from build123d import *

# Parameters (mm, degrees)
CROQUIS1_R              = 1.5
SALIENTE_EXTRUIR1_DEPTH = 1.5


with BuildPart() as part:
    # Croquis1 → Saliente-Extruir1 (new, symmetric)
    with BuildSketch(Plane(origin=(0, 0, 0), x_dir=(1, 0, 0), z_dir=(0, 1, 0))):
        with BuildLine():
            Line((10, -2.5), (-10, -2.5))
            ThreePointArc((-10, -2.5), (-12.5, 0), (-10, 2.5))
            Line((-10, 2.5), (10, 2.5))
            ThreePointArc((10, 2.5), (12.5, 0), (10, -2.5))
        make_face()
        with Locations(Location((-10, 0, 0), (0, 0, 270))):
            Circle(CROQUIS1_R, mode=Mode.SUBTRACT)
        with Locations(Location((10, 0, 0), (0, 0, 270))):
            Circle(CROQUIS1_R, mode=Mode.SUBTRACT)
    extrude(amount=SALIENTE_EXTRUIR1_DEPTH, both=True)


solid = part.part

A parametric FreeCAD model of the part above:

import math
import FreeCAD as App
import Part
import Sketcher

V = App.Vector
Q = App.Units.Quantity

doc = App.newDocument("Part")
body = doc.addObject("PartDesign::Body", "Body")

# Sketch on XZ plane
sketch1 = doc.addObject("Sketcher::SketchObject", "Sketch")
body.addObject(sketch1)
sketch1.AttachmentSupport = (doc.XZ_Plane, [""])
sketch1.MapMode = "FlatFace"
sketch1.addGeometry([
    Part.LineSegment(V(-10, 2.5, 0), V(10, 2.5, 0)),  # 0
    Part.ArcOfCircle(Part.Circle(V(10, 0, 0), V(0, 0, 1), 2.5), math.radians(-90), math.radians(90)),  # 1
    Part.LineSegment(V(10, -2.5, 0), V(-10, -2.5, 0)),  # 2
    Part.ArcOfCircle(Part.Circle(V(-10, 0, 0), V(0, 0, 1), 2.5), math.radians(90), math.radians(270)),  # 3
    Part.Circle(V(10, 0, 0), V(0, 0, 1), 1.5),  # 4
    Part.Circle(V(-10, 0, 0), V(0, 0, 1), 1.5),  # 5
], False)
sketch1.addConstraint([
    Sketcher.Constraint("Tangent", 0, 2, 1, 2),
    Sketcher.Constraint("Tangent", 1, 1, 2, 1),
    Sketcher.Constraint("Tangent", 2, 2, 3, 2),
    Sketcher.Constraint("Tangent", 3, 1, 0, 1),
    Sketcher.Constraint("Horizontal", 0),
    Sketcher.Constraint("Horizontal", 2),
    Sketcher.Constraint("Coincident", 4, 3, 1, 3),
    Sketcher.Constraint("Coincident", 5, 3, 3, 3),
    Sketcher.Constraint("Equal", 4, 5),
    Sketcher.Constraint("Symmetric", 1, 3, 3, 3, -1, 1),
    Sketcher.Constraint("Diameter", 4, Q("3 mm")),
    Sketcher.Constraint("Radius", 1, Q("2.5 mm")),
    Sketcher.Constraint("DistanceX", 0, 1, 0, 2, Q("20 mm")),
])
pad1 = doc.addObject("PartDesign::Pad", "Pad")
body.addObject(pad1)
pad1.Profile = sketch1
pad1.Length = 3
pad1.Midplane = True

doc.recompute()
